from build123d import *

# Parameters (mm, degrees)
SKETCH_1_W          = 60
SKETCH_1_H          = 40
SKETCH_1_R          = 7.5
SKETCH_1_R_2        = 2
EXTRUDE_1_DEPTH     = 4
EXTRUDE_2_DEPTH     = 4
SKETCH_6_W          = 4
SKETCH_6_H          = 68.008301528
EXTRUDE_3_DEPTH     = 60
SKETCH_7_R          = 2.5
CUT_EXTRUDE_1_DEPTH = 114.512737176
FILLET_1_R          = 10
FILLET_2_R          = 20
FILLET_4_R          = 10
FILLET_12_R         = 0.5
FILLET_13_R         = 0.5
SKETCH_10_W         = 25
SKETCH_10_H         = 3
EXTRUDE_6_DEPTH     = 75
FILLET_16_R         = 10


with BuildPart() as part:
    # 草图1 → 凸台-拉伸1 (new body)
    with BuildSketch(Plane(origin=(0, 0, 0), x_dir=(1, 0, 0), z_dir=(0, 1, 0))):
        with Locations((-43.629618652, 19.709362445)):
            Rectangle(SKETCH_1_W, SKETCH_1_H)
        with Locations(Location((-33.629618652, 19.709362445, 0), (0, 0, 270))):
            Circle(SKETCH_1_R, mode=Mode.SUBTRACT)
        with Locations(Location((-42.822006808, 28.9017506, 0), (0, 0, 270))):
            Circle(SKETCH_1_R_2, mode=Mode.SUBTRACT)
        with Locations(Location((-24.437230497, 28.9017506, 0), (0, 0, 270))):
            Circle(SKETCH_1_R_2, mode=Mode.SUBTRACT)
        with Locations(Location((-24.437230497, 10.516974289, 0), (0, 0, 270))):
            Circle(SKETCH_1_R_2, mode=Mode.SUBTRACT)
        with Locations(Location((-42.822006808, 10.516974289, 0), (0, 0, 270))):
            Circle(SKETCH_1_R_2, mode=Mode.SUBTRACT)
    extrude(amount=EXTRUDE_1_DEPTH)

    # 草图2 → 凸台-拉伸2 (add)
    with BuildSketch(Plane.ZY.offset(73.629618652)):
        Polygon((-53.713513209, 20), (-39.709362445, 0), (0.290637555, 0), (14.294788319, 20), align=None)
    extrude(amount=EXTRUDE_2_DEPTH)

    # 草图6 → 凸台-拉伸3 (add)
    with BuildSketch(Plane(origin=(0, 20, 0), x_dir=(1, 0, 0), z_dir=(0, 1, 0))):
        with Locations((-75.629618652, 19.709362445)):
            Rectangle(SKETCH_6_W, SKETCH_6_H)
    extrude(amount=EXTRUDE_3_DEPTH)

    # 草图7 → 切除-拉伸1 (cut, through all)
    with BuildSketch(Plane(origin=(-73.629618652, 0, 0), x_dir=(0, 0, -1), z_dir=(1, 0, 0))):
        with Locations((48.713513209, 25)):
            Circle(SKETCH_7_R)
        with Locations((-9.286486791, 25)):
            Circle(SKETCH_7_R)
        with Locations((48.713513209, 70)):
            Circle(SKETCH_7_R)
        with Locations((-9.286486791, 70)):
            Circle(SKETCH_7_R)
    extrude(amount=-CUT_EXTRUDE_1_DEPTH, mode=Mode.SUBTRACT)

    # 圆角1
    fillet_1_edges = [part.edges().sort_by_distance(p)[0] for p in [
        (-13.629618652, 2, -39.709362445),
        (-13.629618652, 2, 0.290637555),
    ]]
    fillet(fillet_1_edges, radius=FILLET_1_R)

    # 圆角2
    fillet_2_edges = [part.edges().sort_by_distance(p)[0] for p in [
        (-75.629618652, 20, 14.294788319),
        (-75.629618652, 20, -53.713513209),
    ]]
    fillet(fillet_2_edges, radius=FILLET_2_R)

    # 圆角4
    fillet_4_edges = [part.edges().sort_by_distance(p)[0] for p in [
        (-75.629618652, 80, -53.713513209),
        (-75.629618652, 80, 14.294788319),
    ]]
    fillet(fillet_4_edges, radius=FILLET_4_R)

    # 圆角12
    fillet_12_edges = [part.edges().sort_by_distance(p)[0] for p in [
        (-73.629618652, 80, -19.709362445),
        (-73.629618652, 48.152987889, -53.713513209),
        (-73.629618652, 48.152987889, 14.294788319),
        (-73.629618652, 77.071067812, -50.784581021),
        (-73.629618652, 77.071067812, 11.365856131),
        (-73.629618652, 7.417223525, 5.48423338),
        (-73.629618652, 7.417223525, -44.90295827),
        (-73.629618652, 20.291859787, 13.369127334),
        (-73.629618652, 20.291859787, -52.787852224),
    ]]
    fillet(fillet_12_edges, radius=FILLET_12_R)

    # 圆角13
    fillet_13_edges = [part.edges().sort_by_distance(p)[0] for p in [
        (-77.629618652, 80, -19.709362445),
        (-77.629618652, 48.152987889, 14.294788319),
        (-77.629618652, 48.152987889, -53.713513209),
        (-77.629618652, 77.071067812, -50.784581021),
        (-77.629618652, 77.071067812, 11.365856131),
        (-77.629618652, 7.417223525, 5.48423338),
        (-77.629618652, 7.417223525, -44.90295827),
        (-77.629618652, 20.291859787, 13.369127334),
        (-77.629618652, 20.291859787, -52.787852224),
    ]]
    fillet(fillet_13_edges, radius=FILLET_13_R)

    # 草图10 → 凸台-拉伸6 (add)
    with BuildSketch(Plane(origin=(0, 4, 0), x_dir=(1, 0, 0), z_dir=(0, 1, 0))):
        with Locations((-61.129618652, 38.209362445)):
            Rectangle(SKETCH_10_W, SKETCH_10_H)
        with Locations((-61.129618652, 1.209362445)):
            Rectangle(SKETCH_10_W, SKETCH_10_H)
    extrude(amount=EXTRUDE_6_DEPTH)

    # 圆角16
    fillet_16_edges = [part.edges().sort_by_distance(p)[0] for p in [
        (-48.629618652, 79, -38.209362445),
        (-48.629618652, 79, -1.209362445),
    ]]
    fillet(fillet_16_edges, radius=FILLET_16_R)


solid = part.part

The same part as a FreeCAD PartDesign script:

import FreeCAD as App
import Part
import Sketcher
from FreeCAD import Vector
Q = App.Units.Quantity


def edges_at(feature, points):
    """Names of the edges that pass closest to the given points."""
    edges = feature.Shape.Edges
    near = lambda p: min(range(len(edges)), key=lambda i: edges[i].distToShape(Part.Vertex(*p))[0])
    return sorted({f"Edge{near(p) + 1}" for p in points})

doc = App.newDocument("Part")
body = doc.addObject("PartDesign::Body", "Body")

sketch1 = body.newObject("Sketcher::SketchObject", "Sketch")
sketch1.AttachmentSupport = (doc.getObject("XZ_Plane"), [""])
sketch1.MapMode = "FlatFace"
sketch1.addGeometry(Part.LineSegment(Vector(-73.6, -39.7, 0), Vector(-73.6, 0.3, 0)), False)
sketch1.addGeometry(Part.LineSegment(Vector(-73.6, 0.3, 0), Vector(-13.6, 0.3, 0)), False)
sketch1.addGeometry(Part.LineSegment(Vector(-13.6, 0.3, 0), Vector(-13.6, -39.7, 0)), False)
sketch1.addGeometry(Part.LineSegment(Vector(-13.6, -39.7, 0), Vector(-73.6, -39.7, 0)), False)
sketch1.addGeometry(Part.Circle(Vector(-42.8, -10.5, 0), Vector(0, 0, 1), 2), False)
sketch1.addGeometry(Part.Circle(Vector(-24.4, -10.5, 0), Vector(0, 0, 1), 2), False)
sketch1.addGeometry(Part.Circle(Vector(-42.8, -28.9, 0), Vector(0, 0, 1), 2), False)
sketch1.addGeometry(Part.Circle(Vector(-33.6, -19.7, 0), Vector(0, 0, 1), 7.5), False)
sketch1.addGeometry(Part.Circle(Vector(-24.4, -28.9, 0), Vector(0, 0, 1), 2), False)
sketch1.addConstraint(Sketcher.Constraint("Coincident", 0, 2, 1, 1))
sketch1.addConstraint(Sketcher.Constraint("Coincident", 1, 2, 2, 1))
sketch1.addConstraint(Sketcher.Constraint("Coincident", 2, 2, 3, 1))
sketch1.addConstraint(Sketcher.Constraint("Coincident", 3, 2, 0, 1))
sketch1.addConstraint(Sketcher.Constraint("Vertical", 0))
sketch1.addConstraint(Sketcher.Constraint("Horizontal", 1))
sketch1.addConstraint(Sketcher.Constraint("Vertical", 2))
sketch1.addConstraint(Sketcher.Constraint("Horizontal", 3))
sketch1.addConstraint(Sketcher.Constraint("Equal", 4, 5))
sketch1.addConstraint(Sketcher.Constraint("Equal", 5, 6))
sketch1.addConstraint(Sketcher.Constraint("Equal", 6, 8))
sketch1.addConstraint(Sketcher.Constraint("Horizontal", 4, 3, 5, 3))
sketch1.addConstraint(Sketcher.Constraint("Horizontal", 6, 3, 8, 3))
sketch1.addConstraint(Sketcher.Constraint("Vertical", 4, 3, 6, 3))
sketch1.addConstraint(Sketcher.Constraint("Vertical", 5, 3, 8, 3))
sketch1.addConstraint(Sketcher.Constraint("Diameter", 4, 4.0))
sketch1.addConstraint(Sketcher.Constraint("Diameter", 7, 15.0))
sketch1.addConstraint(Sketcher.Constraint("DistanceX", 1, 1, 1, 2, 60.0))
sketch1.addConstraint(Sketcher.Constraint("DistanceY", 0, 1, 0, 2, 40.0))
sketch1.addConstraint(Sketcher.Constraint("DistanceX", 0, 2, 7, 3, 40.0))
sketch1.addConstraint(Sketcher.Constraint("DistanceY", 7, 3, 0, 2, 20.0))
sketch1.addConstraint(Sketcher.Constraint("DistanceX", 5, 3, -1, 1, 24.43723))
sketch1.addConstraint(Sketcher.Constraint("DistanceY", 6, 3, -1, 1, 28.901751))
sketch1.addConstraint(Sketcher.Constraint("DistanceX", 7, 3, -1, 1, 33.629619))
sketch1.addConstraint(Sketcher.Constraint("DistanceY", 7, 3, 5, 3, 9.192388))
sketch1.addConstraint(Sketcher.Constraint("DistanceX", 6, 3, 7, 3, 9.192388))
sketch1.addConstraint(Sketcher.Constraint("DistanceY", 6, 3, 7, 3, 9.192388))
pad1 = body.newObject("PartDesign::Pad", "Pad")
pad1.Profile = sketch1
pad1.Length = 4
pad1.Reversed = True

sketch2 = body.newObject("Sketcher::SketchObject", "Sketch001")
sketch2.AttachmentSupport = (doc.getObject("YZ_Plane"), [""])
sketch2.MapMode = "FlatFace"
sketch2.AttachmentOffset = App.Placement(Vector(0, 0, -73.629619), App.Rotation())
sketch2.addGeometry(Part.LineSegment(Vector(20, -54, 0), Vector(0, -40, 0)), False)
sketch2.addGeometry(Part.LineSegment(Vector(0, -40, 0), Vector(0, 0, 0)), False)
sketch2.addGeometry(Part.LineSegment(Vector(0, 0, 0), Vector(20, 14, 0)), False)
sketch2.addGeometry(Part.LineSegment(Vector(20, 14, 0), Vector(20, -54, 0)), False)
sketch2.addConstraint(Sketcher.Constraint("Coincident", 0, 2, 1, 1))
sketch2.addConstraint(Sketcher.Constraint("Coincident", 1, 2, 2, 1))
sketch2.addConstraint(Sketcher.Constraint("Coincident", 2, 2, 3, 1))
sketch2.addConstraint(Sketcher.Constraint("Coincident", 3, 2, 0, 1))
sketch2.addConstraint(Sketcher.Constraint("Vertical", 1))
sketch2.addConstraint(Sketcher.Constraint("Vertical", 3))
sketch2.addConstraint(Sketcher.Constraint("PointOnObject", 0, 2, -2))
sketch2.addConstraint(Sketcher.Constraint("Equal", 0, 2))
sketch2.addConstraint(Sketcher.Constraint("DistanceY", 1, 1, 1, 2, 40.0))
sketch2.addConstraint(Sketcher.Constraint("Angle", 0, Q("145 deg")))
sketch2.addConstraint(Sketcher.Constraint("DistanceX", -1, 1, 2, 2, 20.0))
sketch2.addConstraint(Sketcher.Constraint("DistanceY", -1, 1, 2, 2, 14.294788))
pad2 = body.newObject("PartDesign::Pad", "Pad001")
pad2.Profile = sketch2
pad2.Length = 4
pad2.Reversed = True

sketch3 = body.newObject("Sketcher::SketchObject", "Sketch002")
sketch3.AttachmentSupport = (doc.getObject("XZ_Plane"), [""])
sketch3.MapMode = "FlatFace"
sketch3.AttachmentOffset = App.Placement(Vector(0, 0, -20), App.Rotation())
sketch3.addGeometry(Part.LineSegment(Vector(-77.6, -53.7, 0), Vector(-77.6, 14.3, 0)), False)
sketch3.addGeometry(Part.LineSegment(Vector(-77.6, 14.3, 0), Vector(-73.6, 14.3, 0)), False)
sketch3.addGeometry(Part.LineSegment(Vector(-73.6, 14.3, 0), Vector(-73.6, -53.7, 0)), False)
sketch3.addGeometry(Part.LineSegment(Vector(-73.6, -53.7, 0), Vector(-77.6, -53.7, 0)), False)
sketch3.addConstraint(Sketcher.Constraint("Coincident", 0, 2, 1, 1))
sketch3.addConstraint(Sketcher.Constraint("Coincident", 1, 2, 2, 1))
sketch3.addConstraint(Sketcher.Constraint("Coincident", 2, 2, 3, 1))
sketch3.addConstraint(Sketcher.Constraint("Coincident", 3, 2, 0, 1))
sketch3.addConstraint(Sketcher.Constraint("Vertical", 0))
sketch3.addConstraint(Sketcher.Constraint("Horizontal", 1))
sketch3.addConstraint(Sketcher.Constraint("Vertical", 2))
sketch3.addConstraint(Sketcher.Constraint("Horizontal", 3))
sketch3.addConstraint(Sketcher.Constraint("DistanceX", 1, 1, 1, 2, 4.0))
sketch3.addConstraint(Sketcher.Constraint("DistanceY", 0, 1, 0, 2, 68.008302))
sketch3.addConstraint(Sketcher.Constraint("DistanceX", 0, 2, -1, 1, 77.629619))
sketch3.addConstraint(Sketcher.Constraint("DistanceY", -1, 1, 0, 2, 14.294788))
pad3 = body.newObject("PartDesign::Pad", "Pad002")
pad3.Profile = sketch3
pad3.Length = 60
pad3.Reversed = True

sketch4 = body.newObject("Sketcher::SketchObject", "Sketch003")
sketch4.AttachmentSupport = (doc.getObject("YZ_Plane"), [""])
sketch4.MapMode = "FlatFace"
sketch4.AttachmentOffset = App.Placement(Vector(0, 0, -73.629619), App.Rotation())
sketch4.addGeometry(Part.Circle(Vector(25, -48.7, 0), Vector(0, 0, 1), 2.5), False)
sketch4.addGeometry(Part.Circle(Vector(25, 9.3, 0), Vector(0, 0, 1), 2.5), False)
sketch4.addGeometry(Part.Circle(Vector(70, -48.7, 0), Vector(0, 0, 1), 2.5), False)
sketch4.addGeometry(Part.Circle(Vector(70, 9.3, 0), Vector(0, 0, 1), 2.5), False)
sketch4.addConstraint(Sketcher.Constraint("Equal", 0, 1))
sketch4.addConstraint(Sketcher.Constraint("Equal", 1, 2))
sketch4.addConstraint(Sketcher.Constraint("Equal", 2, 3))
sketch4.addConstraint(Sketcher.Constraint("Horizontal", 0, 3, 2, 3))
sketch4.addConstraint(Sketcher.Constraint("Horizontal", 1, 3, 3, 3))
sketch4.addConstraint(Sketcher.Constraint("Vertical", 0, 3, 1, 3))
sketch4.addConstraint(Sketcher.Constraint("Vertical", 2, 3, 3, 3))
sketch4.addConstraint(Sketcher.Constraint("Diameter", 0, 5.0))
sketch4.addConstraint(Sketcher.Constraint("DistanceX", -1, 1, 0, 3, 25.0))
sketch4.addConstraint(Sketcher.Constraint("DistanceX", -1, 1, 2, 3, 70.0))
sketch4.addConstraint(Sketcher.Constraint("DistanceY", 0, 3, 1, 3, 58.0))
sketch4.addConstraint(Sketcher.Constraint("DistanceY", 0, 3, -1, 1, 48.713513))
pocket1 = body.newObject("PartDesign::Pocket", "Pocket")
pocket1.Profile = sketch4
pocket1.Type = "ThroughAll"
doc.recompute()

fillet = body.newObject("PartDesign::Fillet", "Fillet")
fillet.Base = (pocket1, edges_at(pocket1, [(-13.63, 2, -39.709), (-13.63, 2, 0.291)]))
fillet.Radius = 10
doc.recompute()

fillet2 = body.newObject("PartDesign::Fillet", "Fillet001")
fillet2.Base = (fillet, edges_at(fillet, [(-75.63, 20, 14.295), (-75.63, 20, -53.714)]))
fillet2.Radius = 20
doc.recompute()

fillet3 = body.newObject("PartDesign::Fillet", "Fillet002")
fillet3.Base = (fillet2, edges_at(fillet2, [(-75.63, 80, -53.714), (-75.63, 80, 14.295)]))
fillet3.Radius = 10
doc.recompute()

fillet4 = body.newObject("PartDesign::Fillet", "Fillet003")
fillet4.Base = (fillet3, edges_at(fillet3, [
    (-73.63, 80, -19.709),
    (-73.63, 48.153, -53.714),
    (-73.63, 48.153, 14.295),
    (-73.63, 77.071, -50.785),
    (-73.63, 77.071, 11.366),
    (-73.63, 7.417, 5.484),
    (-73.63, 7.417, -44.903),
    (-73.63, 20.292, 13.369),
    (-73.63, 20.292, -52.788),
]))
fillet4.Radius = 0.5
doc.recompute()

fillet5 = body.newObject("PartDesign::Fillet", "Fillet004")
fillet5.Base = (fillet4, edges_at(fillet4, [
    (-77.63, 80, -19.709),
    (-77.63, 48.153, 14.295),
    (-77.63, 48.153, -53.714),
    (-77.63, 77.071, -50.785),
    (-77.63, 77.071, 11.366),
    (-77.63, 7.417, 5.484),
    (-77.63, 7.417, -44.903),
    (-77.63, 20.292, 13.369),
    (-77.63, 20.292, -52.788),
]))
fillet5.Radius = 0.5

sketch5 = body.newObject("Sketcher::SketchObject", "Sketch004")
sketch5.AttachmentSupport = (doc.getObject("XZ_Plane"), [""])
sketch5.MapMode = "FlatFace"
sketch5.AttachmentOffset = App.Placement(Vector(0, 0, -4), App.Rotation())
sketch5.addGeometry(Part.LineSegment(Vector(-73.6, -39.7, 0), Vector(-73.6, -36.7, 0)), False)
sketch5.addGeometry(Part.LineSegment(Vector(-73.6, -36.7, 0), Vector(-48.6, -36.7, 0)), False)
sketch5.addGeometry(Part.LineSegment(Vector(-48.6, -36.7, 0), Vector(-48.6, -39.7, 0)), False)
sketch5.addGeometry(Part.LineSegment(Vector(-48.6, -39.7, 0), Vector(-73.6, -39.7, 0)), False)
sketch5.addGeometry(Part.LineSegment(Vector(-73.6, -2.7, 0), Vector(-73.6, 0.3, 0)), False)
sketch5.addGeometry(Part.LineSegment(Vector(-73.6, 0.3, 0), Vector(-48.6, 0.3, 0)), False)
sketch5.addGeometry(Part.LineSegment(Vector(-48.6, 0.3, 0), Vector(-48.6, -2.7, 0)), False)
sketch5.addGeometry(Part.LineSegment(Vector(-48.6, -2.7, 0), Vector(-73.6, -2.7, 0)), False)
sketch5.addConstraint(Sketcher.Constraint("Coincident", 0, 2, 1, 1))
sketch5.addConstraint(Sketcher.Constraint("Coincident", 1, 2, 2, 1))
sketch5.addConstraint(Sketcher.Constraint("Coincident", 2, 2, 3, 1))
sketch5.addConstraint(Sketcher.Constraint("Coincident", 3, 2, 0, 1))
sketch5.addConstraint(Sketcher.Constraint("Coincident", 4, 2, 5, 1))
sketch5.addConstraint(Sketcher.Constraint("Coincident", 5, 2, 6, 1))
sketch5.addConstraint(Sketcher.Constraint("Coincident", 6, 2, 7, 1))
sketch5.addConstraint(Sketcher.Constraint("Coincident", 7, 2, 4, 1))
sketch5.addConstraint(Sketcher.Constraint("Vertical", 0))
sketch5.addConstraint(Sketcher.Constraint("Horizontal", 1))
sketch5.addConstraint(Sketcher.Constraint("Vertical", 2))
sketch5.addConstraint(Sketcher.Constraint("Horizontal", 3))
sketch5.addConstraint(Sketcher.Constraint("Vertical", 4))
sketch5.addConstraint(Sketcher.Constraint("Horizontal", 5))
sketch5.addConstraint(Sketcher.Constraint("Vertical", 6))
sketch5.addConstraint(Sketcher.Constraint("Horizontal", 7))
sketch5.addConstraint(Sketcher.Constraint("Vertical", 3, 2, 4, 2))
sketch5.addConstraint(Sketcher.Constraint("Vertical", 2, 2, 5, 2))
sketch5.addConstraint(Sketcher.Constraint("Equal", 2, 4))
sketch5.addConstraint(Sketcher.Constraint("DistanceX", 1, 1, 1, 2, 25.0))
sketch5.addConstraint(Sketcher.Constraint("DistanceY", 0, 1, 0, 2, 3.0))
sketch5.addConstraint(Sketcher.Constraint("DistanceY", 0, 2, 4, 2, 37.0))
sketch5.addConstraint(Sketcher.Constraint("DistanceX", 0, 2, -1, 1, 73.629619))
sketch5.addConstraint(Sketcher.Constraint("DistanceY", 0, 2, -1, 1, 36.709362))
pad4 = body.newObject("PartDesign::Pad", "Pad003")
pad4.Profile = sketch5
pad4.Length = 75
pad4.Reversed = True
doc.recompute()

fillet6 = body.newObject("PartDesign::Fillet", "Fillet005")
fillet6.Base = (pad4, edges_at(pad4, [(-48.63, 79, -38.209), (-48.63, 79, -1.209)]))
fillet6.Radius = 10

doc.recompute()
